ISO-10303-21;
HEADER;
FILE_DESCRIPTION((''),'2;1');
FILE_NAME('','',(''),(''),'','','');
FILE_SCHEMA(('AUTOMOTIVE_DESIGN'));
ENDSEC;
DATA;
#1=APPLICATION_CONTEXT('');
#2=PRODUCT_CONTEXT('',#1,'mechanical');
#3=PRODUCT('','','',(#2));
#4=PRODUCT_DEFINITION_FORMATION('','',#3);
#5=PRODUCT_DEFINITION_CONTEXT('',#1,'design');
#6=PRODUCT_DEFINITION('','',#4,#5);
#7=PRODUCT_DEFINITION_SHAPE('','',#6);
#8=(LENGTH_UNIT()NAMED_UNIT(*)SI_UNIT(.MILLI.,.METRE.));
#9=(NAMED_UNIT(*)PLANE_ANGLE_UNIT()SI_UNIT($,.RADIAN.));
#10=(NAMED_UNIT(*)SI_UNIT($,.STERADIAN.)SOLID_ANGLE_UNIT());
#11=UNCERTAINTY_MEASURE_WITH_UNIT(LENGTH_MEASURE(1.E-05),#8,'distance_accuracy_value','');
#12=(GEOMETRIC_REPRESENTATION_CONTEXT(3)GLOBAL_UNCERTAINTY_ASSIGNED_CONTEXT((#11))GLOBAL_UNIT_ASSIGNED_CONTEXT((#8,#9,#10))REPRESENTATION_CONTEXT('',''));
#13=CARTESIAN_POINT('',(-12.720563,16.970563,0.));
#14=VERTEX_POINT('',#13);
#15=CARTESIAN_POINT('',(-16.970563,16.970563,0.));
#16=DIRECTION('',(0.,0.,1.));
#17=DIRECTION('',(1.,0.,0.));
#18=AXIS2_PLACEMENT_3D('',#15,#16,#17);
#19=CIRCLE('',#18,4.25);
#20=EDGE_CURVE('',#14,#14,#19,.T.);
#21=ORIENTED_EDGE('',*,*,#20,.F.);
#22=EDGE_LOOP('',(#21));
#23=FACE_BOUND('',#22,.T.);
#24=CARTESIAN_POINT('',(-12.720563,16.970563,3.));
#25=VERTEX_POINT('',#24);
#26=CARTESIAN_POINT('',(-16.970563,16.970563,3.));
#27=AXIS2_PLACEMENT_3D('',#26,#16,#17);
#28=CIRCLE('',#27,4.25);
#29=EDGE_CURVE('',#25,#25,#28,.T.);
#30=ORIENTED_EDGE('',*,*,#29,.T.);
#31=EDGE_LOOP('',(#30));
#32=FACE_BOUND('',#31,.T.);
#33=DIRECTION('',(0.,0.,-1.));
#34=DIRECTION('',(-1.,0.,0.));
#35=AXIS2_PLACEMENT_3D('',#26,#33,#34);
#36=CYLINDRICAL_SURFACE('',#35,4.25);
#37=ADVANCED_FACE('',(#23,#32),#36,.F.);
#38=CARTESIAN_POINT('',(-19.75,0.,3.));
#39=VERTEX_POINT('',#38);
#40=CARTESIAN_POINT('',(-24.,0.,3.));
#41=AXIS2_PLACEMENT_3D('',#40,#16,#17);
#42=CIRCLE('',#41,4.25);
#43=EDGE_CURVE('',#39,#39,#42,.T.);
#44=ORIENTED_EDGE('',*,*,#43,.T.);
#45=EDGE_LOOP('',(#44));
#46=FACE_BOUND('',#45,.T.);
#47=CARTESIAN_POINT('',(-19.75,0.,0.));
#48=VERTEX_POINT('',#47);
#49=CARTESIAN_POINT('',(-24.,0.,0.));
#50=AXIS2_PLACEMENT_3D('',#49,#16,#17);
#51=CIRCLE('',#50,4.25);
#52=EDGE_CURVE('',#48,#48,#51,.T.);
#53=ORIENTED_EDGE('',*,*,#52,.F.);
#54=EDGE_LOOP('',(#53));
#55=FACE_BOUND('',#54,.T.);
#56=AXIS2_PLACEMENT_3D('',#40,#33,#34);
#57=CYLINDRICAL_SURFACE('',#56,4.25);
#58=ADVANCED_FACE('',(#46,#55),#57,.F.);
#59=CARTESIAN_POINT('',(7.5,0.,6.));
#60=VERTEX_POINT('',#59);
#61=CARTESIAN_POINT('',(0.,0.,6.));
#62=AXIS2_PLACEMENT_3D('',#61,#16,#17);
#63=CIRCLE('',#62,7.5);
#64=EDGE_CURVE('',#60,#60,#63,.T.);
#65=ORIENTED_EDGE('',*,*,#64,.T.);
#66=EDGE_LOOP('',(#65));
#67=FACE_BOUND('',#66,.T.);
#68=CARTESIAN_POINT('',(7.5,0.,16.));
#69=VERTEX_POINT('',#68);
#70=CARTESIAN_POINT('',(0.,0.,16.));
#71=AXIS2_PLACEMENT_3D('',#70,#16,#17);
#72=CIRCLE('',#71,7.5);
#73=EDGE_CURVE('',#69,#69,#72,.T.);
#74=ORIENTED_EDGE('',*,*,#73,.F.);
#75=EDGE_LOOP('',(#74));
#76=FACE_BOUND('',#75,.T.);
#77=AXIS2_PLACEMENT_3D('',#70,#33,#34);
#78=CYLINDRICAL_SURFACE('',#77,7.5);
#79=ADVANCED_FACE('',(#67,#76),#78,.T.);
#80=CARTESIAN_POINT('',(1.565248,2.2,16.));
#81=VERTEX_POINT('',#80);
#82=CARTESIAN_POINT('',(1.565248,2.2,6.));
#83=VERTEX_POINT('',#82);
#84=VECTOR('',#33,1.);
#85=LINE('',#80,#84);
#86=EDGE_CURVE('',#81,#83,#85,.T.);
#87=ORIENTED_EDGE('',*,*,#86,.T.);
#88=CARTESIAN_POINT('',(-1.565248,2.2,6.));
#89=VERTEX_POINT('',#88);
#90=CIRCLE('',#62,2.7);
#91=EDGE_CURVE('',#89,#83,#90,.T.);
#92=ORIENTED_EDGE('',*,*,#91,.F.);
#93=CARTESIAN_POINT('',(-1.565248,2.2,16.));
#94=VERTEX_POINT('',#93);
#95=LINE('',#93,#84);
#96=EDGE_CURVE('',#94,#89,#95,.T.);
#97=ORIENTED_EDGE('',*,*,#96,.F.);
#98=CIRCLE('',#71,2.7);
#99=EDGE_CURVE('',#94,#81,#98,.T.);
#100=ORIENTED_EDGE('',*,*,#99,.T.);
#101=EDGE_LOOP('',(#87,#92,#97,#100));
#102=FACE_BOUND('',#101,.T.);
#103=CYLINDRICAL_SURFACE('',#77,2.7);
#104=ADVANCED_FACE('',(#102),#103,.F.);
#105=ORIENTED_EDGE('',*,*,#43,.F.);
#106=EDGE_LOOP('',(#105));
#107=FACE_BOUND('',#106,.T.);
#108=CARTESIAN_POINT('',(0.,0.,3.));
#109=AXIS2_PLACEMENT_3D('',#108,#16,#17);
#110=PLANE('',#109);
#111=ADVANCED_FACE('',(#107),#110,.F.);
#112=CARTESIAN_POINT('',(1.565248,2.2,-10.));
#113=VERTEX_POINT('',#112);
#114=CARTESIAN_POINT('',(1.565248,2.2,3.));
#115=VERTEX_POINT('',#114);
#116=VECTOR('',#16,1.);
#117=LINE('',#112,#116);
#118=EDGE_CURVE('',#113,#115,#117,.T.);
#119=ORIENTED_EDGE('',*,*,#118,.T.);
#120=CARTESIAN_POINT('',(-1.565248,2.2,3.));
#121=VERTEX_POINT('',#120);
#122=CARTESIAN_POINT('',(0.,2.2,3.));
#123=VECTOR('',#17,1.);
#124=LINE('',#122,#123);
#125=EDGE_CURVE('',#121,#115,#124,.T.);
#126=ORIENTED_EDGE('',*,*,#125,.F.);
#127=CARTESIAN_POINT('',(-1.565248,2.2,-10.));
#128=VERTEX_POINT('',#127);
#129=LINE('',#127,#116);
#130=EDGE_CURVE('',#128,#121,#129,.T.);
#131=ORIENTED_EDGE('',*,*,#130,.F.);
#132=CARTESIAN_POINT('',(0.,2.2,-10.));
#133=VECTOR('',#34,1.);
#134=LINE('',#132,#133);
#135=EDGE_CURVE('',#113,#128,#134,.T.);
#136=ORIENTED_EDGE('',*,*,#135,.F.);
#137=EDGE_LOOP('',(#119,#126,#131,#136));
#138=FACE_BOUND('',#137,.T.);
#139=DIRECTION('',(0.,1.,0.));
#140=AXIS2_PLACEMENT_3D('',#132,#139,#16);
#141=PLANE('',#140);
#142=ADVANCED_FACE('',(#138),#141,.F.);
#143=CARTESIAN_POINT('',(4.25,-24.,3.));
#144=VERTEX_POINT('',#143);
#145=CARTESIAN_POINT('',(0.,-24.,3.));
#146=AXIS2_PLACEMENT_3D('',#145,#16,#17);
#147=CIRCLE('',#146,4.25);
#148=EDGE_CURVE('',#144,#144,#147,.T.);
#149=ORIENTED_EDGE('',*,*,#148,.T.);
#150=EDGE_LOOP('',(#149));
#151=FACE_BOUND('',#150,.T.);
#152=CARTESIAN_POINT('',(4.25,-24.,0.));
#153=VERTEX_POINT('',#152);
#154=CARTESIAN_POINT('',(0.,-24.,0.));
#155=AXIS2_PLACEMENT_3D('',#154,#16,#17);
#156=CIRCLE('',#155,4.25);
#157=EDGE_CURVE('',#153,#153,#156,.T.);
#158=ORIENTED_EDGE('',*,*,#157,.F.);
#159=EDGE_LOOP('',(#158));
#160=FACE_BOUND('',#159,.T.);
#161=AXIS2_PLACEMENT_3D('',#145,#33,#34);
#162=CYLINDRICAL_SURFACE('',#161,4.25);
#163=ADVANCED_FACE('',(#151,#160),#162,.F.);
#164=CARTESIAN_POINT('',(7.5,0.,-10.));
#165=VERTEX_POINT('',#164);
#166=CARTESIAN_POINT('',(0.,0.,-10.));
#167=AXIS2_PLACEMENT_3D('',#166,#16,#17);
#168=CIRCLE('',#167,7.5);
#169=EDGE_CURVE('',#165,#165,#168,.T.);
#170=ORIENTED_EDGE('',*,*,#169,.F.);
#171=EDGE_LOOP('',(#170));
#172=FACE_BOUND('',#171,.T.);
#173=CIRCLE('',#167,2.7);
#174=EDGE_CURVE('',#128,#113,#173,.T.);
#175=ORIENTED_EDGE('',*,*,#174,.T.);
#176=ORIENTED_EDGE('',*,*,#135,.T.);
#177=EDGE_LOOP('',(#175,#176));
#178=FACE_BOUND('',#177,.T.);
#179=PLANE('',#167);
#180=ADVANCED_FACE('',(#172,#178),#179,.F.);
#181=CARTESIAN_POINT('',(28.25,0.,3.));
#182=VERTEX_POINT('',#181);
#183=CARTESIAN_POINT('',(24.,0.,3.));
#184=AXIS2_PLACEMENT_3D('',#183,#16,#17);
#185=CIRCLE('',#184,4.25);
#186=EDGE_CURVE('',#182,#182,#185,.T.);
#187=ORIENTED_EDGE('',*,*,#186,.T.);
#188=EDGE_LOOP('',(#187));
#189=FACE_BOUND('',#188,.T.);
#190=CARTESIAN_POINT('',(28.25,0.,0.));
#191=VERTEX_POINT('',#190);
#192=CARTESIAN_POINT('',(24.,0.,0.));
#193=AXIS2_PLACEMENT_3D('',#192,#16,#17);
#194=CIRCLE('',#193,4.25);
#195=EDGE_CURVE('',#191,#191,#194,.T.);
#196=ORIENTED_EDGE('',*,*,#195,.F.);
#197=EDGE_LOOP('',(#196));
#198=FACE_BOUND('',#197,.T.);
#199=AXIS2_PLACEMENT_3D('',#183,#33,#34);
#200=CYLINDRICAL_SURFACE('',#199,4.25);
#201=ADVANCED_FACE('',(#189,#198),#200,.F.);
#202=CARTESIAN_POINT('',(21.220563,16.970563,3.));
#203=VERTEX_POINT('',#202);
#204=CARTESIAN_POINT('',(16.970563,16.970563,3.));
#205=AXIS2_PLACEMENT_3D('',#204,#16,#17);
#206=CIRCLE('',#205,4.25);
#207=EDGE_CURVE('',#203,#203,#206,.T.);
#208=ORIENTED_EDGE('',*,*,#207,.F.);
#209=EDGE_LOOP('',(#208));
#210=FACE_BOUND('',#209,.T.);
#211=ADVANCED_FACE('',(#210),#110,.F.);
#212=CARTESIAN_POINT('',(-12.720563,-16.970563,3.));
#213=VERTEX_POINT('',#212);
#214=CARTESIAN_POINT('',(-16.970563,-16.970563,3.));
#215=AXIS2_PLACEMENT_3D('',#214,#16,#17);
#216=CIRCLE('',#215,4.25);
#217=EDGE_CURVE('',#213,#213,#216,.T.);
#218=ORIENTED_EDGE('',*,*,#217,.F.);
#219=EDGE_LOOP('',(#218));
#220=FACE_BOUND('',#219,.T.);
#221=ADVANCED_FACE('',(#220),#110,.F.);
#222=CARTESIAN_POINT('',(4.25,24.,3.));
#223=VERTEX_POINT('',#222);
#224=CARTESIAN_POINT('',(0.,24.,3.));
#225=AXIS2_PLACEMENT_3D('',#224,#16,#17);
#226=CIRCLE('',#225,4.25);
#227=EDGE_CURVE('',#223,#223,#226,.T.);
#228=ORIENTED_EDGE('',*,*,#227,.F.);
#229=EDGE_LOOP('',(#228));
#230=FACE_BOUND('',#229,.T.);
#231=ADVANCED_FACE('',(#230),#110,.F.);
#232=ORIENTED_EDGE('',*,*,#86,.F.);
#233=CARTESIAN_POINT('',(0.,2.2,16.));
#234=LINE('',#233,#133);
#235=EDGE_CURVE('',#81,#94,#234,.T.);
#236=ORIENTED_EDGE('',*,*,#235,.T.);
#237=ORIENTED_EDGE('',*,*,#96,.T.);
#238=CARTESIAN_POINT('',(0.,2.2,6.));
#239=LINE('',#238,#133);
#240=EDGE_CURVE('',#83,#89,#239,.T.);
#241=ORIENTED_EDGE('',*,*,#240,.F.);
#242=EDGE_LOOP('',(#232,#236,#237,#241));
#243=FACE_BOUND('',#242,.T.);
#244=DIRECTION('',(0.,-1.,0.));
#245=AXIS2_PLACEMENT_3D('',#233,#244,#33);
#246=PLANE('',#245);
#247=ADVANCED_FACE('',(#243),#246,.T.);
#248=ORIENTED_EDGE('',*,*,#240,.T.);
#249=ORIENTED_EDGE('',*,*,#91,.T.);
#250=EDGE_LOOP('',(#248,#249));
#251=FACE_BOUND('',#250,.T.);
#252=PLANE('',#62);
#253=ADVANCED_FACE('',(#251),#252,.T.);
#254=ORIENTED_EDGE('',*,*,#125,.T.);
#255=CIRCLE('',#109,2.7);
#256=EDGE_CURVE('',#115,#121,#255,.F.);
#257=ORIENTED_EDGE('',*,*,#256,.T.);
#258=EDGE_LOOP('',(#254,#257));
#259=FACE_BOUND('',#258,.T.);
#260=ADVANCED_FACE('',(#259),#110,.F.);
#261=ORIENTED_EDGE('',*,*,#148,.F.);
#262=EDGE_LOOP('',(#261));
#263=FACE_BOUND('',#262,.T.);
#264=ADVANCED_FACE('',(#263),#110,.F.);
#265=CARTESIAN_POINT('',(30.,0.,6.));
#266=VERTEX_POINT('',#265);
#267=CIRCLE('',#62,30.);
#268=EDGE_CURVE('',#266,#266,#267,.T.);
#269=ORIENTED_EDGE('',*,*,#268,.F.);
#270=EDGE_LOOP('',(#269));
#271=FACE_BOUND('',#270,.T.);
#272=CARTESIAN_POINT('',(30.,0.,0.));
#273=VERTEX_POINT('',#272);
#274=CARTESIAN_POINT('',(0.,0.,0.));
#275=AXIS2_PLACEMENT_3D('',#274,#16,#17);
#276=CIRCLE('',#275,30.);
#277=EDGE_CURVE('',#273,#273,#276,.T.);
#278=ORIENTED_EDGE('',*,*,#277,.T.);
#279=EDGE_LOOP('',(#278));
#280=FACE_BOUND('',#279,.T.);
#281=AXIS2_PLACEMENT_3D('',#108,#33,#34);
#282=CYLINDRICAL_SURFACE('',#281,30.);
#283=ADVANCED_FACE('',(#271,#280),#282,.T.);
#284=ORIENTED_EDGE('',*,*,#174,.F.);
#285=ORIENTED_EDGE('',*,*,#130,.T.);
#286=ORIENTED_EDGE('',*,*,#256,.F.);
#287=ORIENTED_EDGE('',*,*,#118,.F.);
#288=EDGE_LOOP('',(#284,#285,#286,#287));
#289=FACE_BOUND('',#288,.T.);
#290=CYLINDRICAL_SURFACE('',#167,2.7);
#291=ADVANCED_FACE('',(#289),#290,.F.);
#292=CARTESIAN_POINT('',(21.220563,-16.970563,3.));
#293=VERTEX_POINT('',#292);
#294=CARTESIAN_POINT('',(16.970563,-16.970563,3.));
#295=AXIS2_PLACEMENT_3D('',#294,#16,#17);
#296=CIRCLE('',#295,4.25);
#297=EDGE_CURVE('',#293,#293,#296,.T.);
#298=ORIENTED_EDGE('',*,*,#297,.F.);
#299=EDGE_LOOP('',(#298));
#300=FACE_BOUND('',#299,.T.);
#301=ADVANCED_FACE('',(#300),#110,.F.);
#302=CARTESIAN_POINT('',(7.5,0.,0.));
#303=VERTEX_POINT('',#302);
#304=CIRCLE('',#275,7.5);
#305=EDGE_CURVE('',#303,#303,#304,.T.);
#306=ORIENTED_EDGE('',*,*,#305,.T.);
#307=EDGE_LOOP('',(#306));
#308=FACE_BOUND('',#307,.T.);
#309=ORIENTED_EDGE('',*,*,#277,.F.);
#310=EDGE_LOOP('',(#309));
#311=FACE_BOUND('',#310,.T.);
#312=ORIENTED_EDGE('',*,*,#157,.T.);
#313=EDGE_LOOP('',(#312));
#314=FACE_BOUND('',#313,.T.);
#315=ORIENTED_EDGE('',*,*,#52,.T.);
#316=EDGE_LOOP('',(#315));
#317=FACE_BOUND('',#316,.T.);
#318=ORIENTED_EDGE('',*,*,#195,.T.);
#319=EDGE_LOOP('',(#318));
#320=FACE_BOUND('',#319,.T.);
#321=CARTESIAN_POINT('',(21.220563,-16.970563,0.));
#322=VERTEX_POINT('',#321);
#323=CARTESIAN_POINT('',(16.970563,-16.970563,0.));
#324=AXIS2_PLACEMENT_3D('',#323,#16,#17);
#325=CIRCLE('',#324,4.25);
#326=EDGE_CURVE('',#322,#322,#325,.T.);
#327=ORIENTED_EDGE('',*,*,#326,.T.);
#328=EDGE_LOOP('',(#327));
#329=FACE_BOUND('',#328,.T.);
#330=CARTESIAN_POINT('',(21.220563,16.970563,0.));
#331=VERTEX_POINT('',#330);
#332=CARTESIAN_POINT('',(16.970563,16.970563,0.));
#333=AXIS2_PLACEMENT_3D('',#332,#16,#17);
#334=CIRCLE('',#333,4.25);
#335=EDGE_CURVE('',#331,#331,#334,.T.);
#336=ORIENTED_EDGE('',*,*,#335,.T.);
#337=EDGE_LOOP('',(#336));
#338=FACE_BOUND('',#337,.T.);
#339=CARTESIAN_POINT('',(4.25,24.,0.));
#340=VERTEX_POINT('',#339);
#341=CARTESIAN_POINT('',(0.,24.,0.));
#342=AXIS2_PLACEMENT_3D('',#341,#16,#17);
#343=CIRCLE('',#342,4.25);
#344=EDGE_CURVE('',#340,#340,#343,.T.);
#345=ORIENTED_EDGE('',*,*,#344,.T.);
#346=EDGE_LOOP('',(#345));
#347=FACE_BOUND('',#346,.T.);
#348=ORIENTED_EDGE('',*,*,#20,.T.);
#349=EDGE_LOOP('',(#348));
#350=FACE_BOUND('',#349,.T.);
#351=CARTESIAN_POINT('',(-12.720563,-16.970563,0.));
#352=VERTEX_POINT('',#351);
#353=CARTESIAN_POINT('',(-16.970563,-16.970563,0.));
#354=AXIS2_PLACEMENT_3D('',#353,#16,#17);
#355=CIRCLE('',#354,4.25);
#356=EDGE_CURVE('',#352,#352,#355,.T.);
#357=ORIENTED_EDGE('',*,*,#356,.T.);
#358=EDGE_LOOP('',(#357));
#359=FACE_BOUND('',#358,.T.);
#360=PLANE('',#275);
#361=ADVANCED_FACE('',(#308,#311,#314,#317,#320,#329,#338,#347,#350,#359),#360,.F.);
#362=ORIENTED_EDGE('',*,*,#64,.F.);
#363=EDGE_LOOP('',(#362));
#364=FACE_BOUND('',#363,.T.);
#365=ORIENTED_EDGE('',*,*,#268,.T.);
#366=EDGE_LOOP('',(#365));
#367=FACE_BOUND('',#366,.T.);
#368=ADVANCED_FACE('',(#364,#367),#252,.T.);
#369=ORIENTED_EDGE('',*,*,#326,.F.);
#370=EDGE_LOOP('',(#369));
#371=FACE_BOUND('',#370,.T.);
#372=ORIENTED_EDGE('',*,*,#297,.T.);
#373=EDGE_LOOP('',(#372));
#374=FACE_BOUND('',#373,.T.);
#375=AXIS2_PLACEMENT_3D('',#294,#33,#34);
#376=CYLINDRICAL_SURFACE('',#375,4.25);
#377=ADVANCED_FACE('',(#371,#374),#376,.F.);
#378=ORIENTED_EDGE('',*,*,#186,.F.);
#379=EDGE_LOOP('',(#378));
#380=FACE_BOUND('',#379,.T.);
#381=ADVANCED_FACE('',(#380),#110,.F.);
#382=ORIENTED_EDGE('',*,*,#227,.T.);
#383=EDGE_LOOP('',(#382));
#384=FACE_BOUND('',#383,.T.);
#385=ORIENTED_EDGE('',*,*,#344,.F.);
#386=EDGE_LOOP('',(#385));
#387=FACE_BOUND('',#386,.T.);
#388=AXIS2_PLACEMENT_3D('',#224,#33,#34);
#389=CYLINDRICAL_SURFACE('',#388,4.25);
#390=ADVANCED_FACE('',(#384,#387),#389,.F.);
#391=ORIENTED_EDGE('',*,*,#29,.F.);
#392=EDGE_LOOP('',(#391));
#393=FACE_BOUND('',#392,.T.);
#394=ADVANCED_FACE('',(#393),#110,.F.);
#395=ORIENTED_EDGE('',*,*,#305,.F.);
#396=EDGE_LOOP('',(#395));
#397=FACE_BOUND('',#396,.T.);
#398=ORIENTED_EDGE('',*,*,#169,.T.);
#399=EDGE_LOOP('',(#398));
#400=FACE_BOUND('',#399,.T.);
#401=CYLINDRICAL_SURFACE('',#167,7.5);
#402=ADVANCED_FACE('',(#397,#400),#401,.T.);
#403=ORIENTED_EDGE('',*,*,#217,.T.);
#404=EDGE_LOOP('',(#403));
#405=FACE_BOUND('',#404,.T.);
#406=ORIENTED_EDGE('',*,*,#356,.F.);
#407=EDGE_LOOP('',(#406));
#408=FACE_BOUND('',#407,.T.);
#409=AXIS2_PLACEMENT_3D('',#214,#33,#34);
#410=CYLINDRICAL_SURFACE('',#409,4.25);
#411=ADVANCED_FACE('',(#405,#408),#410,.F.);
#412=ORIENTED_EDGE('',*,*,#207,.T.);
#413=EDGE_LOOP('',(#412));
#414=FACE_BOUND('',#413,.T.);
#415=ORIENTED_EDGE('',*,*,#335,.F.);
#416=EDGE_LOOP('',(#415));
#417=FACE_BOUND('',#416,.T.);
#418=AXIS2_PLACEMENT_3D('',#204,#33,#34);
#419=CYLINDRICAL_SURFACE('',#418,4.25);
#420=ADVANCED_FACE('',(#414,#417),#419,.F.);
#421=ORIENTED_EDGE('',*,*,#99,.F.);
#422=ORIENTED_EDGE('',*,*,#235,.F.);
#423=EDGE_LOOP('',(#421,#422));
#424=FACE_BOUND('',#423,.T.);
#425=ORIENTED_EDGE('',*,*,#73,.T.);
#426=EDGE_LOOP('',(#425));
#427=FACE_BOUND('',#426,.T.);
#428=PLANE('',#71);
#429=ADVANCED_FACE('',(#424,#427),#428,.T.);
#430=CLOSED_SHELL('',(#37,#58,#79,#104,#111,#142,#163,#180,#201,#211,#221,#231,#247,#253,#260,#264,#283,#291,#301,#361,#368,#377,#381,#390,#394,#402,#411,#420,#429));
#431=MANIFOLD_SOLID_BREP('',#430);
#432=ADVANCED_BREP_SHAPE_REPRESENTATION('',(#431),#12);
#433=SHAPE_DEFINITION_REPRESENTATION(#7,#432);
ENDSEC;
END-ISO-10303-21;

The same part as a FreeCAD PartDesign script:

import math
import FreeCAD as App
import Part
import Sketcher
Q = App.Units.Quantity

doc = App.newDocument("Part")
body = doc.addObject("PartDesign::Body", "Body")

sketch1 = doc.addObject("Sketcher::SketchObject", "Sketch")
body.addObject(sketch1)
sketch1.AttachmentSupport = (doc.XY_Plane, [""])
sketch1.MapMode = "FlatFace"
sketch1.addGeometry([
    Part.Circle(App.Vector(0, 0, 0), App.Vector(0, 0, 1), 7.5),
    Part.ArcOfCircle(Part.Circle(App.Vector(0, 0, 0), App.Vector(0, 0, 1), 2.7), math.radians(125.430945), math.radians(414.569055)),
    Part.LineSegment(App.Vector(-1.565248, 2.2, 0), App.Vector(1.565248, 2.2, 0)),
], False)
sketch1.addConstraint([
    Sketcher.Constraint("Coincident", 1, 1, 2, 1),
    Sketcher.Constraint("Coincident", 2, 2, 1, 2),
    Sketcher.Constraint("Horizontal", 2),
    Sketcher.Constraint("Coincident", 0, 3, -1, 1),
    Sketcher.Constraint("Coincident", 1, 3, -1, 1),
    Sketcher.Constraint("Diameter", 0, Q("15 mm")),
    Sketcher.Constraint("Radius", 1, Q("2.7 mm")),
    Sketcher.Constraint("DistanceY", -1, 1, 1, 1, Q("2.2 mm")),
])
pad1 = doc.addObject("PartDesign::Pad", "Pad")
body.addObject(pad1)
pad1.Profile = sketch1
pad1.Length = 10
pad1.Reversed = True

sketch2 = doc.addObject("Sketcher::SketchObject", "Sketch001")
body.addObject(sketch2)
sketch2.AttachmentSupport = (doc.XY_Plane, [""])
sketch2.MapMode = "FlatFace"
sketch2.AttachmentOffset = App.Placement(App.Vector(0, 0, 3), App.Rotation())
sketch2.addGeometry([
    Part.Circle(App.Vector(0, 0, 0), App.Vector(0, 0, 1), 30),
    Part.Circle(App.Vector(-16.970563, -16.970563, 0), App.Vector(0, 0, 1), 4.25),
    Part.Circle(App.Vector(0, -24, 0), App.Vector(0, 0, 1), 4.25),
    Part.Circle(App.Vector(16.970563, -16.970563, 0), App.Vector(0, 0, 1), 4.25),
    Part.LineSegment(App.Vector(-1.565248, 2.2, 0), App.Vector(1.565248, 2.2, 0)),
    Part.ArcOfCircle(Part.Circle(App.Vector(0, 0, 0), App.Vector(0, 0, 1), 2.7), math.radians(125.430945), math.radians(414.569055)),
    Part.Circle(App.Vector(-24, 0, 0), App.Vector(0, 0, 1), 4.25),
    Part.Circle(App.Vector(-16.970563, 16.970563, 0), App.Vector(0, 0, 1), 4.25),
    Part.Circle(App.Vector(24, 0, 0), App.Vector(0, 0, 1), 4.25),
    Part.Circle(App.Vector(0, 24, 0), App.Vector(0, 0, 1), 4.25),
    Part.Circle(App.Vector(16.970563, 16.970563, 0), App.Vector(0, 0, 1), 4.25),
], False)
sketch2.addConstraint([
    Sketcher.Constraint("Coincident", 4, 1, 5, 1),
    Sketcher.Constraint("Coincident", 5, 2, 4, 2),
    Sketcher.Constraint("Horizontal", 4),
    Sketcher.Constraint("Coincident", 0, 3, -1, 1),
    Sketcher.Constraint("Coincident", 5, 3, -1, 1),
    Sketcher.Constraint("Equal", 1, 2),
    Sketcher.Constraint("Equal", 2, 3),
    Sketcher.Constraint("Equal", 3, 6),
    Sketcher.Constraint("Equal", 6, 7),
    Sketcher.Constraint("Equal", 7, 8),
    Sketcher.Constraint("Equal", 8, 9),
    Sketcher.Constraint("Equal", 9, 10),
    Sketcher.Constraint("Symmetric", 3, 3, 7, 3, -1, 1),
    Sketcher.Constraint("Symmetric", 6, 3, 8, 3, -1, 1),
    Sketcher.Constraint("Symmetric", 2, 3, 9, 3, -1, 1),
    Sketcher.Constraint("Symmetric", 1, 3, 10, 3, -1, 1),
    Sketcher.Constraint("Symmetric", 1, 3, 3, 3, -2),
    Sketcher.Constraint("PointOnObject", 2, 3, -2),
    Sketcher.Constraint("PointOnObject", 6, 3, -1),
    Sketcher.Constraint("Diameter", 0, Q("60 mm")),
    Sketcher.Constraint("Diameter", 1, Q("8.5 mm")),
    Sketcher.Constraint("Radius", 5, Q("2.7 mm")),
    Sketcher.Constraint("DistanceY", 2, 3, -1, 1, Q("24 mm")),
    Sketcher.Constraint("DistanceX", 6, 3, -1, 1, Q("24 mm")),
    Sketcher.Constraint("DistanceY", -1, 1, 4, 1, Q("2.2 mm")),
    Sketcher.Constraint("DistanceX", 1, 3, -1, 1, Q("16.970563 mm")),
    Sketcher.Constraint("DistanceY", 1, 3, -1, 1, Q("16.970563 mm")),
])
pad2 = doc.addObject("PartDesign::Pad", "Pad001")
body.addObject(pad2)
pad2.Profile = sketch2
pad2.Length = 3
pad2.Reversed = True

sketch3 = doc.addObject("Sketcher::SketchObject", "Sketch002")
body.addObject(sketch3)
sketch3.AttachmentSupport = (doc.XY_Plane, [""])
sketch3.MapMode = "FlatFace"
sketch3.AttachmentOffset = App.Placement(App.Vector(0, 0, 6), App.Rotation())
sketch3.addGeometry(Part.Circle(App.Vector(0, 0, 0), App.Vector(0, 0, 1), 30), False)
sketch3.addConstraint([
    Sketcher.Constraint("Coincident", 0, 3, -1, 1),
    Sketcher.Constraint("Diameter", 0, Q("60 mm")),
])
pad3 = doc.addObject("PartDesign::Pad", "Pad002")
body.addObject(pad3)
pad3.Profile = sketch3
pad3.Length = 3
pad3.Reversed = True

sketch4 = doc.addObject("Sketcher::SketchObject", "Sketch003")
body.addObject(sketch4)
sketch4.AttachmentSupport = (doc.XY_Plane, [""])
sketch4.MapMode = "FlatFace"
sketch4.AttachmentOffset = App.Placement(App.Vector(0, 0, 16), App.Rotation())
sketch4.addGeometry([
    Part.Circle(App.Vector(0, 0, 0), App.Vector(0, 0, 1), 7.5),
    Part.LineSegment(App.Vector(-1.565248, 2.2, 0), App.Vector(1.565248, 2.2, 0)),
    Part.ArcOfCircle(Part.Circle(App.Vector(0, 0, 0), App.Vector(0, 0, 1), 2.7), math.radians(125.430945), math.radians(414.569055)),
], False)
sketch4.addConstraint([
    Sketcher.Constraint("Coincident", 1, 1, 2, 1),
    Sketcher.Constraint("Coincident", 2, 2, 1, 2),
    Sketcher.Constraint("Horizontal", 1),
    Sketcher.Constraint("Coincident", 0, 3, -1, 1),
    Sketcher.Constraint("Coincident", 2, 3, -1, 1),
    Sketcher.Constraint("Diameter", 0, Q("15 mm")),
    Sketcher.Constraint("Radius", 2, Q("2.7 mm")),
    Sketcher.Constraint("DistanceY", -1, 1, 1, 1, Q("2.2 mm")),
])
pad4 = doc.addObject("PartDesign::Pad", "Pad003")
body.addObject(pad4)
pad4.Profile = sketch4
pad4.Length = 10
pad4.Reversed = True

doc.recompute()
